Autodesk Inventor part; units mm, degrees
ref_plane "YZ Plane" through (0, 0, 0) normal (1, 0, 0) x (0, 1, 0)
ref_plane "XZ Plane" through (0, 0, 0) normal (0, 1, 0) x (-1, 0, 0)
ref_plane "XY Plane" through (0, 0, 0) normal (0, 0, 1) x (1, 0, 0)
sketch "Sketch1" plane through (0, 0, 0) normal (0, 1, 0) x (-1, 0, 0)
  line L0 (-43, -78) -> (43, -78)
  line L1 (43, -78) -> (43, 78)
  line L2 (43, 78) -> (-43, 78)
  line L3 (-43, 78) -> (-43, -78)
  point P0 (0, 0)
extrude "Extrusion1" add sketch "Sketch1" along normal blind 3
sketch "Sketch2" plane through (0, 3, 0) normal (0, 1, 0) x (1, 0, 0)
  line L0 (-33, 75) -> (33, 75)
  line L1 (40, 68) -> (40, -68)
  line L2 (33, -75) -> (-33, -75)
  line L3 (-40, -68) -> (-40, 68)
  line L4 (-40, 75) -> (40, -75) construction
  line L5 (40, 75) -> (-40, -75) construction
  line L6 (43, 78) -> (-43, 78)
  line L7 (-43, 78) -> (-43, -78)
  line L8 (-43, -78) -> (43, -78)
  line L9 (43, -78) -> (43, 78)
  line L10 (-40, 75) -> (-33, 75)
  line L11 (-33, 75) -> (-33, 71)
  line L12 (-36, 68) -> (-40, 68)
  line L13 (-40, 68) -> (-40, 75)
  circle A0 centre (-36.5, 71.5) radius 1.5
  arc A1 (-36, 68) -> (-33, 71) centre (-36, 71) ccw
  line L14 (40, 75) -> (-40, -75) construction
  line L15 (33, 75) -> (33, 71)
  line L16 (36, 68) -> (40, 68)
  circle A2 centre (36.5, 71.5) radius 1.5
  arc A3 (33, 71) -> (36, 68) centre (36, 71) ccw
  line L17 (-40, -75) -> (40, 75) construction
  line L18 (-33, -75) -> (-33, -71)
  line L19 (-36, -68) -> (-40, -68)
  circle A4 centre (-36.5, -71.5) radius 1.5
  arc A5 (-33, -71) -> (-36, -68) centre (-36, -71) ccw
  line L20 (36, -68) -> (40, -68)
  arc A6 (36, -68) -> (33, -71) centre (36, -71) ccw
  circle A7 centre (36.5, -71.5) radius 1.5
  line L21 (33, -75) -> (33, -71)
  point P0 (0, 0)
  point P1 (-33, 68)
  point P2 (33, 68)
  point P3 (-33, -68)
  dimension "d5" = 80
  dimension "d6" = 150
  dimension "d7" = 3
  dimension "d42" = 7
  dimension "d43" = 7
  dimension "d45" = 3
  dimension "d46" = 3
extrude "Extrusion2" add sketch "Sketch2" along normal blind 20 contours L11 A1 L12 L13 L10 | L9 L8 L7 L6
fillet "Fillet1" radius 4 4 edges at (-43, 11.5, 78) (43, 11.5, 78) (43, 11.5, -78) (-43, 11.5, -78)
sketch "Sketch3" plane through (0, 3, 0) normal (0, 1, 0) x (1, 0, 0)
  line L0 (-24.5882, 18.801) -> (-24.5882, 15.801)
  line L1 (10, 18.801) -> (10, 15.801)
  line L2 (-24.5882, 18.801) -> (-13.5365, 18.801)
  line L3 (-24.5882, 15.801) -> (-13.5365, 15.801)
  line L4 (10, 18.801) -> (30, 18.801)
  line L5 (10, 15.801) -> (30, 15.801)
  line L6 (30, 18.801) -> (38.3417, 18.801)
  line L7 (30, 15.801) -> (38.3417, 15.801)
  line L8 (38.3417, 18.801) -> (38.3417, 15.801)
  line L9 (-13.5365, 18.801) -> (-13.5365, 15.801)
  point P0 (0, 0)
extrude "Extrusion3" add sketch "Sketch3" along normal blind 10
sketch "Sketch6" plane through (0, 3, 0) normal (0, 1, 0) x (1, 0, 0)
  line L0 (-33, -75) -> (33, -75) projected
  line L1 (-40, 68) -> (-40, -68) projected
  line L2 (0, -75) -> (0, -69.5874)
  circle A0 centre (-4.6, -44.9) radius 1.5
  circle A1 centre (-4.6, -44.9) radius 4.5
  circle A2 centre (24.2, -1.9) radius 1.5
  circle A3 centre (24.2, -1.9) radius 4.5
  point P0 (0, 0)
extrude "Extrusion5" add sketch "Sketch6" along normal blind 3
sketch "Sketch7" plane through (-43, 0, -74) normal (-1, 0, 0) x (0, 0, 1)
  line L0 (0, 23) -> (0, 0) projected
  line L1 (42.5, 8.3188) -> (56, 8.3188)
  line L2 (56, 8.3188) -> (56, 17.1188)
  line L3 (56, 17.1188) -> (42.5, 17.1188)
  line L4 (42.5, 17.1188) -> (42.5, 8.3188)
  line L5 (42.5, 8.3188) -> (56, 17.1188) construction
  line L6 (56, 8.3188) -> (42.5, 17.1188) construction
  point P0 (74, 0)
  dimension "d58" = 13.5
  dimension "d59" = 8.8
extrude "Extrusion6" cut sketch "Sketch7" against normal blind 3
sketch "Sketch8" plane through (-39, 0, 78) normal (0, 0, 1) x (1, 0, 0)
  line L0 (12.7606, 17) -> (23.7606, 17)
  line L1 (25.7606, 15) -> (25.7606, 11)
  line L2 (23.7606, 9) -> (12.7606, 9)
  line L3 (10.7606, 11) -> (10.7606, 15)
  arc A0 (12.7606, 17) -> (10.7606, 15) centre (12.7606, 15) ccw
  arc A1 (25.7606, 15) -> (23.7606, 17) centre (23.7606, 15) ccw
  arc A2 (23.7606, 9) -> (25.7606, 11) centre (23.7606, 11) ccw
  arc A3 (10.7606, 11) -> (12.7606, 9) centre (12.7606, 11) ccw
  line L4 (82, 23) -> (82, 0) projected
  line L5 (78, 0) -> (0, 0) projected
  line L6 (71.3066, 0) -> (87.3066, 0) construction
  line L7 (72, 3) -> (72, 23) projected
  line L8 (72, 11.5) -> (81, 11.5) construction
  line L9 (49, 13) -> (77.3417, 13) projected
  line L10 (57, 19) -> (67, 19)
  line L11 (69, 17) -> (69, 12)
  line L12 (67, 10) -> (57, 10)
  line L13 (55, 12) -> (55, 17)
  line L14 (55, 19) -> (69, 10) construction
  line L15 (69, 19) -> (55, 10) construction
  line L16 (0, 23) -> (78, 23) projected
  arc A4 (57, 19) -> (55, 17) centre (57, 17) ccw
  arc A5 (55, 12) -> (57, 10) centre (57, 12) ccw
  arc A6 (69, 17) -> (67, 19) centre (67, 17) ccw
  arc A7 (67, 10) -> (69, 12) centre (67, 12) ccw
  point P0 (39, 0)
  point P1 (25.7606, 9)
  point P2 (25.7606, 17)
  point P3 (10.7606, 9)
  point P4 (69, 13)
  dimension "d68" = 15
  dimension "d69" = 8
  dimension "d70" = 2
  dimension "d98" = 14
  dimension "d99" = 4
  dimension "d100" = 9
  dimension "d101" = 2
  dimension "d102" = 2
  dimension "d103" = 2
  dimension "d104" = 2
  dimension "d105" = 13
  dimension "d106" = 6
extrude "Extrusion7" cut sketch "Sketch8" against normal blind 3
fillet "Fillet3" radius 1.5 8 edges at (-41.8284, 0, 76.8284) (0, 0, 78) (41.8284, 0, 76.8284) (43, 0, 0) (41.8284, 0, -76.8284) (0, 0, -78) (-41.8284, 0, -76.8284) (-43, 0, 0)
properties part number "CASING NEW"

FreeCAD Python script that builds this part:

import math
import FreeCAD as App
import Part
import Sketcher
from FreeCAD import Vector


def edges_at(feature, points):
    """Names of the edges that pass closest to the given points."""
    edges = feature.Shape.Edges
    near = lambda p: min(range(len(edges)), key=lambda i: edges[i].distToShape(Part.Vertex(*p))[0])
    return sorted({f"Edge{near(p) + 1}" for p in points})


def add_polygon(sketch, points):
    """Adds a closed chain of lines whose ends are joined by coincident constraints."""
    first, n = sketch.GeometryCount, len(points)
    for a, b in zip(points, points[1:] + points[:1]):
        sketch.addGeometry(Part.LineSegment(App.Vector(*a, 0), App.Vector(*b, 0)), False)
    for i in range(n):
        sketch.addConstraint(Sketcher.Constraint("Coincident", first + i, 2, first + (i + 1) % n, 1))

doc = App.newDocument("Part")
body = doc.addObject("PartDesign::Body", "Body")

sketch1 = body.newObject("Sketcher::SketchObject", "Sketch")
sketch1.AttachmentSupport = (doc.getObject("XZ_Plane"), [""])
sketch1.MapMode = "FlatFace"
add_polygon(sketch1, [(43, 78), (43, -78), (-43, -78), (-43, 78)])
sketch1.addConstraint([
    Sketcher.Constraint("Vertical", 0),
    Sketcher.Constraint("Horizontal", 1),
    Sketcher.Constraint("Vertical", 2),
    Sketcher.Constraint("Horizontal", 3),
    Sketcher.Constraint("Symmetric", 0, 2, 2, 2, -1, 1),
    Sketcher.Constraint("DistanceX", 1, 2, 1, 1, 86.0),
    Sketcher.Constraint("DistanceY", 0, 2, 0, 1, 156.0),
])
pad1 = body.newObject("PartDesign::Pad", "Pad")
pad1.Profile = sketch1
pad1.Length = 3
pad1.Reversed = True

sketch2 = body.newObject("Sketcher::SketchObject", "Sketch001")
sketch2.AttachmentSupport = (doc.getObject("XZ_Plane"), [""])
sketch2.MapMode = "FlatFace"
sketch2.AttachmentOffset = App.Placement(Vector(0, 0, -3), App.Rotation())
add_polygon(sketch2, [(43, 78), (43, -78), (-43, -78), (-43, 78)])
sketch2.addGeometry(Part.LineSegment(Vector(-33, -71, 0), Vector(-33, -75, 0)), False)
sketch2.addGeometry(Part.LineSegment(Vector(-33, -75, 0), Vector(33, -75, 0)), False)
sketch2.addGeometry(Part.LineSegment(Vector(33, -75, 0), Vector(33, -71, 0)), False)
sketch2.addGeometry(Part.ArcOfCircle(Part.Circle(Vector(36, -71, 0), Vector(0, 0, 1), 3), math.radians(90), math.radians(180)), False)
sketch2.addGeometry(Part.LineSegment(Vector(36, -68, 0), Vector(40, -68, 0)), False)
sketch2.addGeometry(Part.LineSegment(Vector(40, -68, 0), Vector(40, 68, 0)), False)
sketch2.addGeometry(Part.LineSegment(Vector(40, 68, 0), Vector(36, 68, 0)), False)
sketch2.addGeometry(Part.ArcOfCircle(Part.Circle(Vector(36, 71, 0), Vector(0, 0, 1), 3), math.radians(180), math.radians(270)), False)
sketch2.addGeometry(Part.LineSegment(Vector(33, 71, 0), Vector(33, 75, 0)), False)
sketch2.addGeometry(Part.LineSegment(Vector(33, 75, 0), Vector(-33, 75, 0)), False)
sketch2.addGeometry(Part.LineSegment(Vector(-33, 75, 0), Vector(-33, 71, 0)), False)
sketch2.addGeometry(Part.ArcOfCircle(Part.Circle(Vector(-36, 71, 0), Vector(0, 0, 1), 3), math.radians(-90), math.radians(0)), False)
sketch2.addGeometry(Part.LineSegment(Vector(-36, 68, 0), Vector(-40, 68, 0)), False)
sketch2.addGeometry(Part.LineSegment(Vector(-40, 68, 0), Vector(-40, -68, 0)), False)
sketch2.addGeometry(Part.LineSegment(Vector(-40, -68, 0), Vector(-36, -68, 0)), False)
sketch2.addGeometry(Part.ArcOfCircle(Part.Circle(Vector(-36, -71, 0), Vector(0, 0, 1), 3), math.radians(0), math.radians(90)), False)
sketch2.addGeometry(Part.Circle(Vector(-36.5, -71.5, 0), Vector(0, 0, 1), 1.5), False)
sketch2.addGeometry(Part.Circle(Vector(-36.5, 71.5, 0), Vector(0, 0, 1), 1.5), False)
sketch2.addGeometry(Part.Circle(Vector(36.5, 71.5, 0), Vector(0, 0, 1), 1.5), False)
sketch2.addGeometry(Part.Circle(Vector(36.5, -71.5, 0), Vector(0, 0, 1), 1.5), False)
sketch2.addConstraint([
    Sketcher.Constraint("Coincident", 4, 2, 5, 1),
    Sketcher.Constraint("Coincident", 5, 2, 6, 1),
    Sketcher.Constraint("Tangent", 6, 2, 7, 2),
    Sketcher.Constraint("Tangent", 7, 1, 8, 1),
    Sketcher.Constraint("Coincident", 8, 2, 9, 1),
    Sketcher.Constraint("Coincident", 9, 2, 10, 1),
    Sketcher.Constraint("Tangent", 10, 2, 11, 2),
    Sketcher.Constraint("Tangent", 11, 1, 12, 1),
    Sketcher.Constraint("Coincident", 12, 2, 13, 1),
    Sketcher.Constraint("Coincident", 13, 2, 14, 1),
    Sketcher.Constraint("Tangent", 14, 2, 15, 2),
    Sketcher.Constraint("Tangent", 15, 1, 16, 1),
    Sketcher.Constraint("Coincident", 16, 2, 17, 1),
    Sketcher.Constraint("Coincident", 17, 2, 18, 1),
    Sketcher.Constraint("Tangent", 18, 2, 19, 2),
    Sketcher.Constraint("Tangent", 19, 1, 4, 1),
    Sketcher.Constraint("Vertical", 0),
    Sketcher.Constraint("Horizontal", 1),
    Sketcher.Constraint("Vertical", 2),
    Sketcher.Constraint("Horizontal", 3),
    Sketcher.Constraint("Vertical", 4),
    Sketcher.Constraint("Horizontal", 5),
    Sketcher.Constraint("Vertical", 6),
    Sketcher.Constraint("Horizontal", 8),
    Sketcher.Constraint("Vertical", 9),
    Sketcher.Constraint("Horizontal", 10),
    Sketcher.Constraint("Vertical", 12),
    Sketcher.Constraint("Horizontal", 13),
    Sketcher.Constraint("Vertical", 14),
    Sketcher.Constraint("Horizontal", 16),
    Sketcher.Constraint("Vertical", 17),
    Sketcher.Constraint("Horizontal", 18),
    Sketcher.Constraint("Equal", 7, 11),
    Sketcher.Constraint("Equal", 11, 15),
    Sketcher.Constraint("Equal", 15, 19),
    Sketcher.Constraint("Equal", 20, 21),
    Sketcher.Constraint("Equal", 21, 22),
    Sketcher.Constraint("Equal", 22, 23),
    Sketcher.Constraint("Symmetric", 7, 3, 15, 3, -1, 1),
    Sketcher.Constraint("Symmetric", 11, 3, 19, 3, -1, 1),
    Sketcher.Constraint("Symmetric", 20, 3, 22, 3, -1, 1),
    Sketcher.Constraint("Symmetric", 21, 3, 23, 3, -1, 1),
    Sketcher.Constraint("Symmetric", 0, 2, 2, 2, -1, 1),
    Sketcher.Constraint("Symmetric", 11, 3, 15, 3, -2),
    Sketcher.Constraint("Symmetric", 21, 3, 22, 3, -2),
    Sketcher.Constraint("Equal", 10, 16),
    Sketcher.Constraint("Equal", 18, 4),
    Sketcher.Constraint("Equal", 6, 12),
    Sketcher.Constraint("Diameter", 20, 3.0),
    Sketcher.Constraint("Radius", 7, 3.0),
    Sketcher.Constraint("DistanceX", 7, 3, 0, 2, 7.0),
    Sketcher.Constraint("DistanceY", 0, 2, 7, 3, 7.0),
    Sketcher.Constraint("DistanceY", 1, 2, 4, 2, 3.0),
    Sketcher.Constraint("DistanceX", 1, 2, 1, 1, 86.0),
    Sketcher.Constraint("DistanceY", 0, 2, 0, 1, 156.0),
    Sketcher.Constraint("DistanceY", 20, 3, 21, 3, 143.0),
    Sketcher.Constraint("DistanceX", 21, 3, 22, 3, 73.0),
])
pad2 = body.newObject("PartDesign::Pad", "Pad001")
pad2.Profile = sketch2
pad2.Length = 20
pad2.Reversed = True
doc.recompute()

fillet = body.newObject("PartDesign::Fillet", "Fillet")
fillet.Base = (pad2, edges_at(pad2, [
    (-43, 11.5, 78),
    (43, 11.5, 78),
    (43, 11.5, -78),
    (-43, 11.5, -78),
]))
fillet.Radius = 4

sketch3 = body.newObject("Sketcher::SketchObject", "Sketch002")
sketch3.AttachmentSupport = (doc.getObject("XZ_Plane"), [""])
sketch3.MapMode = "FlatFace"
sketch3.AttachmentOffset = App.Placement(Vector(0, 0, -3), App.Rotation())
add_polygon(sketch3, [(-13.5, -18.8), (-24.6, -18.8), (-24.6, -15.8), (-13.5, -15.8)])
add_polygon(sketch3, [(38.3, -18.8), (10, -18.8), (10, -15.8), (38.3, -15.8)])
sketch3.addConstraint([
    Sketcher.Constraint("Horizontal", 0),
    Sketcher.Constraint("Vertical", 1),
    Sketcher.Constraint("Horizontal", 2),
    Sketcher.Constraint("Vertical", 3),
    Sketcher.Constraint("Horizontal", 4),
    Sketcher.Constraint("Vertical", 5),
    Sketcher.Constraint("Horizontal", 6),
    Sketcher.Constraint("Vertical", 7),
    Sketcher.Constraint("Horizontal", 3, 2, 4, 2),
    Sketcher.Constraint("Horizontal", 2, 2, 5, 2),
    Sketcher.Constraint("DistanceY", 1, 1, 1, 2, 3.0),
    Sketcher.Constraint("DistanceX", -1, 1, 4, 2, 10.0),
    Sketcher.Constraint("DistanceX", 1, 2, 6, 2, 62.93),
    Sketcher.Constraint("DistanceX", 0, 2, 0, 1, 11.0517),
    Sketcher.Constraint("DistanceX", 4, 2, 4, 1, 28.3417),
    Sketcher.Constraint("DistanceY", 0, 2, -1, 1, 18.801),
])
pad3 = body.newObject("PartDesign::Pad", "Pad002")
pad3.Profile = sketch3
pad3.Length = 10
pad3.Reversed = True

sketch4 = body.newObject("Sketcher::SketchObject", "Sketch003")
sketch4.AttachmentSupport = (doc.getObject("XZ_Plane"), [""])
sketch4.MapMode = "FlatFace"
sketch4.AttachmentOffset = App.Placement(Vector(0, 0, -3), App.Rotation())
sketch4.addGeometry([
    Part.Circle(Vector(-4.6, 44.9, 0), Vector(0, 0, 1), 4.5),
    Part.Circle(Vector(-4.6, 44.9, 0), Vector(0, 0, 1), 1.5),
    Part.Circle(Vector(24.2, 1.9, 0), Vector(0, 0, 1), 4.5),
    Part.Circle(Vector(24.2, 1.9, 0), Vector(0, 0, 1), 1.5),
], False)
sketch4.addConstraint([
    Sketcher.Constraint("Coincident", 1, 3, 0, 3),
    Sketcher.Constraint("Coincident", 3, 3, 2, 3),
    Sketcher.Constraint("Equal", 0, 2),
    Sketcher.Constraint("Equal", 1, 3),
    Sketcher.Constraint("Diameter", 0, 9.0),
    Sketcher.Constraint("Diameter", 1, 3.0),
    Sketcher.Constraint("DistanceY", 2, 3, 0, 3, 43.0),
    Sketcher.Constraint("DistanceX", 0, 3, -1, 1, 4.6),
    Sketcher.Constraint("DistanceY", -1, 1, 0, 3, 44.9),
    Sketcher.Constraint("DistanceX", -1, 1, 2, 3, 24.2),
])
pad4 = body.newObject("PartDesign::Pad", "Pad003")
pad4.Profile = sketch4
pad4.Length = 3
pad4.Reversed = True

sketch5 = body.newObject("Sketcher::SketchObject", "Sketch004")
sketch5.AttachmentSupport = (doc.getObject("YZ_Plane"), [""])
sketch5.MapMode = "FlatFace"
sketch5.AttachmentOffset = App.Placement(Vector(0, 0, -43), App.Rotation())
add_polygon(sketch5, [(17, -32), (8, -32), (8, -18), (17, -18)])
sketch5.addConstraint([
    Sketcher.Constraint("Horizontal", 0),
    Sketcher.Constraint("Vertical", 1),
    Sketcher.Constraint("Horizontal", 2),
    Sketcher.Constraint("Vertical", 3),
    Sketcher.Constraint("DistanceX", 0, 2, 0, 1, 8.8),
    Sketcher.Constraint("DistanceY", 1, 1, 1, 2, 13.5),
    Sketcher.Constraint("DistanceY", 1, 2, -1, 1, 18.0),
    Sketcher.Constraint("DistanceX", -1, 1, 0, 2, 8.3188),
])
pocket1 = body.newObject("PartDesign::Pocket", "Pocket")
pocket1.Profile = sketch5
pocket1.Length = 3
pocket1.Reversed = True

sketch6 = body.newObject("Sketcher::SketchObject", "Sketch005")
sketch6.AttachmentSupport = (doc.getObject("XY_Plane"), [""])
sketch6.MapMode = "FlatFace"
sketch6.AttachmentOffset = App.Placement(Vector(0, 0, 78), App.Rotation())
sketch6.addGeometry([
    Part.LineSegment(Vector(-15.2, 17, 0), Vector(-26.2, 17, 0)),
    Part.ArcOfCircle(Part.Circle(Vector(-26.2, 15, 0), Vector(0, 0, 1), 2), math.radians(90), math.radians(180)),
    Part.LineSegment(Vector(-28.2, 15, 0), Vector(-28.2, 11, 0)),
    Part.ArcOfCircle(Part.Circle(Vector(-26.2, 11, 0), Vector(0, 0, 1), 2), math.radians(180), math.radians(270)),
    Part.LineSegment(Vector(-26.2, 9, 0), Vector(-15.2, 9, 0)),
    Part.ArcOfCircle(Part.Circle(Vector(-15.2, 11, 0), Vector(0, 0, 1), 2), math.radians(-90), math.radians(0)),
    Part.LineSegment(Vector(-13.2, 11, 0), Vector(-13.2, 15, 0)),
    Part.ArcOfCircle(Part.Circle(Vector(-15.2, 15, 0), Vector(0, 0, 1), 2), math.radians(0), math.radians(90)),
    Part.LineSegment(Vector(16, 17, 0), Vector(16, 12, 0)),
    Part.ArcOfCircle(Part.Circle(Vector(18, 12, 0), Vector(0, 0, 1), 2), math.radians(180), math.radians(270)),
    Part.LineSegment(Vector(18, 10, 0), Vector(28, 10, 0)),
    Part.ArcOfCircle(Part.Circle(Vector(28, 12, 0), Vector(0, 0, 1), 2), math.radians(-90), math.radians(0)),
    Part.LineSegment(Vector(30, 12, 0), Vector(30, 17, 0)),
    Part.ArcOfCircle(Part.Circle(Vector(28, 17, 0), Vector(0, 0, 1), 2), math.radians(0), math.radians(90)),
    Part.LineSegment(Vector(28, 19, 0), Vector(18, 19, 0)),
    Part.ArcOfCircle(Part.Circle(Vector(18, 17, 0), Vector(0, 0, 1), 2), math.radians(90), math.radians(180)),
], False)
sketch6.addConstraint([
    Sketcher.Constraint("Tangent", 0, 2, 1, 1),
    Sketcher.Constraint("Tangent", 1, 2, 2, 1),
    Sketcher.Constraint("Tangent", 2, 2, 3, 1),
    Sketcher.Constraint("Tangent", 3, 2, 4, 1),
    Sketcher.Constraint("Tangent", 4, 2, 5, 1),
    Sketcher.Constraint("Tangent", 5, 2, 6, 1),
    Sketcher.Constraint("Tangent", 6, 2, 7, 1),
    Sketcher.Constraint("Tangent", 7, 2, 0, 1),
    Sketcher.Constraint("Tangent", 8, 2, 9, 1),
    Sketcher.Constraint("Tangent", 9, 2, 10, 1),
    Sketcher.Constraint("Tangent", 10, 2, 11, 1),
    Sketcher.Constraint("Tangent", 11, 2, 12, 1),
    Sketcher.Constraint("Tangent", 12, 2, 13, 1),
    Sketcher.Constraint("Tangent", 13, 2, 14, 1),
    Sketcher.Constraint("Tangent", 14, 2, 15, 1),
    Sketcher.Constraint("Tangent", 15, 2, 8, 1),
    Sketcher.Constraint("Horizontal", 0),
    Sketcher.Constraint("Vertical", 2),
    Sketcher.Constraint("Horizontal", 4),
    Sketcher.Constraint("Vertical", 6),
    Sketcher.Constraint("Vertical", 8),
    Sketcher.Constraint("Horizontal", 10),
    Sketcher.Constraint("Vertical", 12),
    Sketcher.Constraint("Horizontal", 14),
    Sketcher.Constraint("Equal", 1, 3),
    Sketcher.Constraint("Equal", 3, 5),
    Sketcher.Constraint("Equal", 5, 7),
    Sketcher.Constraint("Equal", 7, 9),
    Sketcher.Constraint("Equal", 9, 11),
    Sketcher.Constraint("Equal", 11, 13),
    Sketcher.Constraint("Equal", 13, 15),
    Sketcher.Constraint("Horizontal", 15, 3, 0, 2),
    Sketcher.Constraint("Radius", 1, 2.0),
    Sketcher.Constraint("DistanceY", 2, 2, 2, 1, 4.0),
    Sketcher.Constraint("DistanceY", -1, 1, 1, 3, 15.0),
    Sketcher.Constraint("DistanceX", 1, 2, 7, 3, 13.0),
    Sketcher.Constraint("DistanceY", 10, 2, 13, 2, 9.0),
    Sketcher.Constraint("DistanceX", 10, 1, 10, 2, 10.0),
    Sketcher.Constraint("DistanceX", -1, 1, 9, 3, 18.0),
    Sketcher.Constraint("DistanceX", 1, 3, -1, 1, 26.2394),
])
pocket2 = body.newObject("PartDesign::Pocket", "Pocket001")
pocket2.Profile = sketch6
pocket2.Length = 3
doc.recompute()

fillet2 = body.newObject("PartDesign::Fillet", "Fillet001")
fillet2.Base = (pocket2, edges_at(pocket2, [
    (-41.828, 0, 76.828),
    (0, 0, 78),
    (41.828, 0, 76.828),
    (43, 0, 0),
    (41.828, 0, -76.828),
    (0, 0, -78),
    (-41.828, 0, -76.828),
    (-43, 0, 0),
]))
fillet2.Radius = 1.5

doc.recompute()
